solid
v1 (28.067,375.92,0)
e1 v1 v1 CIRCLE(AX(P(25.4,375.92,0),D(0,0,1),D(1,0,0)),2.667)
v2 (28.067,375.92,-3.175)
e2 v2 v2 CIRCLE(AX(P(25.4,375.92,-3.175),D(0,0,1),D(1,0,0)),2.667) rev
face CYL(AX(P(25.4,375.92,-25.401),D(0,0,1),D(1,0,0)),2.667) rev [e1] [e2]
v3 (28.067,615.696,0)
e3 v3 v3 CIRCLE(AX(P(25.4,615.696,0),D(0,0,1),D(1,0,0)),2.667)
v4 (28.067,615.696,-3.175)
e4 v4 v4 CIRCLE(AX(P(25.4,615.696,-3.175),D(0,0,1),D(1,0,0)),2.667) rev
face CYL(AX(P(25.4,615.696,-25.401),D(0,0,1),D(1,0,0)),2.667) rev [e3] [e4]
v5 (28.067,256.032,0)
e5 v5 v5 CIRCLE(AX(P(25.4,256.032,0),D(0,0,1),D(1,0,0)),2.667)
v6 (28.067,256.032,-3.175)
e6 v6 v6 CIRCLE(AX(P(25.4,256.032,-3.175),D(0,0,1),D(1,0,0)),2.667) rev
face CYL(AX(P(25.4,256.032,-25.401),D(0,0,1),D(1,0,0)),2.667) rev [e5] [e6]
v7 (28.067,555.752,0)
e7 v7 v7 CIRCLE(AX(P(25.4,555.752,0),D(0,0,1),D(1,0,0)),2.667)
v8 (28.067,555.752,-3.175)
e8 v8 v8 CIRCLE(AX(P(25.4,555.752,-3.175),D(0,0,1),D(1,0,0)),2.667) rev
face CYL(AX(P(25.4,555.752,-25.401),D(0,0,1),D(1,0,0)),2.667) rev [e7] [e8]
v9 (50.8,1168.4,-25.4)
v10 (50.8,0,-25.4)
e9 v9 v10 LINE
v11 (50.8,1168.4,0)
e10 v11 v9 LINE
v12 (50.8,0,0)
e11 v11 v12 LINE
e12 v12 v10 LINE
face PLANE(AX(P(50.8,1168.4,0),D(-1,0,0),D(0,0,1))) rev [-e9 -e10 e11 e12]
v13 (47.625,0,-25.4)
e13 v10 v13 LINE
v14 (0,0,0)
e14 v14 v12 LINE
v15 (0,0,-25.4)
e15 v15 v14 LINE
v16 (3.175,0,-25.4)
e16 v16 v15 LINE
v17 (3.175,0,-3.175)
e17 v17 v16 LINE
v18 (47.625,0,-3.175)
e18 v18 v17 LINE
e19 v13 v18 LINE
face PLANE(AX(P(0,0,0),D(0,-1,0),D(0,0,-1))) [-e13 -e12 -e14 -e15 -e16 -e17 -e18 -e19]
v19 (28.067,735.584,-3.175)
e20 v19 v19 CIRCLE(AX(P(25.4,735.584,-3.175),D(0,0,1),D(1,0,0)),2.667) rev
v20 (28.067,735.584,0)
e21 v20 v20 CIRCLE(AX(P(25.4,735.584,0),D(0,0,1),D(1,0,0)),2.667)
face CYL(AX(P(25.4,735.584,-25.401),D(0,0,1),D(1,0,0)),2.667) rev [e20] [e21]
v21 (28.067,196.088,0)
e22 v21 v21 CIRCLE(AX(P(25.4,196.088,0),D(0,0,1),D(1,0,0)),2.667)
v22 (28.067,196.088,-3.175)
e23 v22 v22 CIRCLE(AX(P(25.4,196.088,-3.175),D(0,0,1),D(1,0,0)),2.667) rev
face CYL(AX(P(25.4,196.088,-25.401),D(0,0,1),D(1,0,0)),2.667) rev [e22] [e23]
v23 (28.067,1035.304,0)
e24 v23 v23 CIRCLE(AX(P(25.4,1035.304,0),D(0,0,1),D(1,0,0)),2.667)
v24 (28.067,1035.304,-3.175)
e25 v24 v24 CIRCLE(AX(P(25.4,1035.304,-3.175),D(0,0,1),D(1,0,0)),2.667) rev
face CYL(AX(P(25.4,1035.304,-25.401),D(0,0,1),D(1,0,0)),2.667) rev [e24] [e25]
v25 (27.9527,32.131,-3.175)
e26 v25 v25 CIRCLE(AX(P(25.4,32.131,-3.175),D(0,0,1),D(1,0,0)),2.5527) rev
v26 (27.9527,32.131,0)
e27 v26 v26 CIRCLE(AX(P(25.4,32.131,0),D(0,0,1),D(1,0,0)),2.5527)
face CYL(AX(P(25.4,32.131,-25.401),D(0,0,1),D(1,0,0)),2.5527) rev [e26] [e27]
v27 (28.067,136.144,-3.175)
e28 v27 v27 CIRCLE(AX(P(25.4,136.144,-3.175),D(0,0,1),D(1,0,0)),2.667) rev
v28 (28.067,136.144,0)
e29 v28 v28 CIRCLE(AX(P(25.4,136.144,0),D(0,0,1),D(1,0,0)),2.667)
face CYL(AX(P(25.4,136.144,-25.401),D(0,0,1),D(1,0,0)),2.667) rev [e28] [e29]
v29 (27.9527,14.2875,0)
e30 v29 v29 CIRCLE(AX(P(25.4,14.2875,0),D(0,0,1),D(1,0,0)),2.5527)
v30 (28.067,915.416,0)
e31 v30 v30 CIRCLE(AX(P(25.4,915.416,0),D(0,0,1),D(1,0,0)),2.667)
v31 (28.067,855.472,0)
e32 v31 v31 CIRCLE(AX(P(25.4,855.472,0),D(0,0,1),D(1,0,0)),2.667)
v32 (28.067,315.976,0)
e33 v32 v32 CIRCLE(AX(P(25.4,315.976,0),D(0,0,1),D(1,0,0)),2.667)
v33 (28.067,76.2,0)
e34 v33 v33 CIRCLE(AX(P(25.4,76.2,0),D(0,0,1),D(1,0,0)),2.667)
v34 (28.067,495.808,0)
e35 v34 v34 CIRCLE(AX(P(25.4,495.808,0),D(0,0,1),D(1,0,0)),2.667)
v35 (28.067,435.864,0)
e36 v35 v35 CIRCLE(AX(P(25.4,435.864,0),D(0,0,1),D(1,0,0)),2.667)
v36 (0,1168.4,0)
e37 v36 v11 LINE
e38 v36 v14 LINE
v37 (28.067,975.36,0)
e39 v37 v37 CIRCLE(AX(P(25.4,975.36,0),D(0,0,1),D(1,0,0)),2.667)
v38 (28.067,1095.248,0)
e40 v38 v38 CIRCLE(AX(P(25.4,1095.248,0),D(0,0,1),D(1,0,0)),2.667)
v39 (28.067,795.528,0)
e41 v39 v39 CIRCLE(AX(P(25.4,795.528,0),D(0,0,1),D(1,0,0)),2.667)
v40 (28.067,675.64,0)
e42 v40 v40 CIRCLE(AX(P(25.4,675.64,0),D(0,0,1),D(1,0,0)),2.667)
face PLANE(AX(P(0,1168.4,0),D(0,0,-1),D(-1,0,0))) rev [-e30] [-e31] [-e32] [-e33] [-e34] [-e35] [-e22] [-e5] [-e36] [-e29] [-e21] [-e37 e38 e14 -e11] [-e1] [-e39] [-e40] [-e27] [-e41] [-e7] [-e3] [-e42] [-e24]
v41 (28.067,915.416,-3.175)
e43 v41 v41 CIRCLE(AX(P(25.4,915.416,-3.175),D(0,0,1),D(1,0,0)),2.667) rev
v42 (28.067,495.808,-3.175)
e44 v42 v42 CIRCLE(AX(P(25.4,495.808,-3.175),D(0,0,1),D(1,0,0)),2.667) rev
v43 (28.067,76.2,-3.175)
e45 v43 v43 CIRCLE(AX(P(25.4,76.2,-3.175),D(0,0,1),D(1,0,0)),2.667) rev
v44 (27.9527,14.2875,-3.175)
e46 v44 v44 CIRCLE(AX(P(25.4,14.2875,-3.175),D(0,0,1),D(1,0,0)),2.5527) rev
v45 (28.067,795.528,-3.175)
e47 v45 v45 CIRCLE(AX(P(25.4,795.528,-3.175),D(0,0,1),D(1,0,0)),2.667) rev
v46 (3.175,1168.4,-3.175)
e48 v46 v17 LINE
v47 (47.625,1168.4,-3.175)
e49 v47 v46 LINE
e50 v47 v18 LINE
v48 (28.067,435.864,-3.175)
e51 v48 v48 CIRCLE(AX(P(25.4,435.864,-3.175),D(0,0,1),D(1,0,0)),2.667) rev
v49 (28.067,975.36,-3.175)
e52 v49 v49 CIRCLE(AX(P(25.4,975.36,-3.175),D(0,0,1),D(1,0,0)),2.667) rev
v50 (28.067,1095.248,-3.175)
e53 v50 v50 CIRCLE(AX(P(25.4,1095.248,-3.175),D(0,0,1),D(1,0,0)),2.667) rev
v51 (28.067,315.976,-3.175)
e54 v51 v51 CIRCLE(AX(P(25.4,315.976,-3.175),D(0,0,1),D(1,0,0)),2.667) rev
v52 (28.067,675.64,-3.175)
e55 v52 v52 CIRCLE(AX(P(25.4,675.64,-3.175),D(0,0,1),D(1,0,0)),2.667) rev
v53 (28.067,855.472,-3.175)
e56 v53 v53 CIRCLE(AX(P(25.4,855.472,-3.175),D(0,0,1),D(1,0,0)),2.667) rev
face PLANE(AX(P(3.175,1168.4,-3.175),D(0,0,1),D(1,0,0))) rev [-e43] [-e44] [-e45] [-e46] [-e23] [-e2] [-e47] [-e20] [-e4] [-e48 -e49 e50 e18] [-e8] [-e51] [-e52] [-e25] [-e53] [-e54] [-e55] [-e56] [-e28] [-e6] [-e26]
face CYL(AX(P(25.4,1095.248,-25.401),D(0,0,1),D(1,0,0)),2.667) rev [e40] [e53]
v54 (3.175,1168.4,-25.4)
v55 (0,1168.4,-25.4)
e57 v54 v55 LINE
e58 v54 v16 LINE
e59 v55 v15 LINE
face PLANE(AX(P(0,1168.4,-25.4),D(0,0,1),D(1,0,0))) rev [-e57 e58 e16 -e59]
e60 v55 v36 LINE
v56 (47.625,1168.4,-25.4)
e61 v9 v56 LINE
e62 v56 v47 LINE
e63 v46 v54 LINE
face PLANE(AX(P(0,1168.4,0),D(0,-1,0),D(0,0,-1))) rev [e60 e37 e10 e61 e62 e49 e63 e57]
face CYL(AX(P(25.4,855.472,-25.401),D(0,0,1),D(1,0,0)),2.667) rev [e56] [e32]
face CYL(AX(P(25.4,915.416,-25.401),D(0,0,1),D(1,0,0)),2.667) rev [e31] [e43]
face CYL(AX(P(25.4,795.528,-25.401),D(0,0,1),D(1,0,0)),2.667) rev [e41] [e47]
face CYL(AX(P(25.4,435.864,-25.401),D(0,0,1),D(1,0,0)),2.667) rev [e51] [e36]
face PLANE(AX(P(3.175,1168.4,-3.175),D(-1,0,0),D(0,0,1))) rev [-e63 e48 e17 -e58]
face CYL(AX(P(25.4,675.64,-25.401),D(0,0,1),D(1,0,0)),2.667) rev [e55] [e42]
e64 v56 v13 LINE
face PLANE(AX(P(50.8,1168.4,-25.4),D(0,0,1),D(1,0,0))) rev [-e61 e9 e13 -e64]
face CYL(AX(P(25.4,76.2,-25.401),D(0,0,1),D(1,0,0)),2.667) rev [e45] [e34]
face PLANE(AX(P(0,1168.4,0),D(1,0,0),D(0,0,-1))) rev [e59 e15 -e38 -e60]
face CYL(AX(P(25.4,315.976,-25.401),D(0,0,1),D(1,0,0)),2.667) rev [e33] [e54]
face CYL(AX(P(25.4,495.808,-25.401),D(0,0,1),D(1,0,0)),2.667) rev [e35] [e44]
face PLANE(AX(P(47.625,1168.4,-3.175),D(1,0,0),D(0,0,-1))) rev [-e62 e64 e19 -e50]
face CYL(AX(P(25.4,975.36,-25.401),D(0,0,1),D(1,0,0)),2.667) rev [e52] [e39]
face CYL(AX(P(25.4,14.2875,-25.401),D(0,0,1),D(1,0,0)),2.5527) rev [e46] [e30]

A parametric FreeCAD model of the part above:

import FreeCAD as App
import Part
import Sketcher
from FreeCAD import Vector
Q = App.Units.Quantity


def add_polygon(sketch, points):
    """Adds a closed chain of lines whose ends are joined by coincident constraints."""
    first, n = sketch.GeometryCount, len(points)
    for a, b in zip(points, points[1:] + points[:1]):
        sketch.addGeometry(Part.LineSegment(App.Vector(*a, 0), App.Vector(*b, 0)), False)
    for i in range(n):
        sketch.addConstraint(Sketcher.Constraint("Coincident", first + i, 2, first + (i + 1) % n, 1))

doc = App.newDocument("Part")
body = doc.addObject("PartDesign::Body", "Body")

# Sketch on XZ plane
sketch1 = body.newObject("Sketcher::SketchObject", "Sketch")
sketch1.AttachmentSupport = (doc.getObject("XZ_Plane"), [""])
sketch1.MapMode = "FlatFace"
add_polygon(sketch1, [(3.2, -3.2), (3.2, -25.4), (0, -25.4), (0, 0), (50.8, 0), (50.8, -25.4), (47.6, -25.4), (47.6, -3.2)])  # lines 0-7
sketch1.addConstraint([
    Sketcher.Constraint("Vertical", 0),
    Sketcher.Constraint("Horizontal", 1),
    Sketcher.Constraint("Vertical", 2),
    Sketcher.Constraint("Horizontal", 3),
    Sketcher.Constraint("Vertical", 4),
    Sketcher.Constraint("Horizontal", 5),
    Sketcher.Constraint("Vertical", 6),
    Sketcher.Constraint("Horizontal", 7),
    Sketcher.Constraint("Coincident", 2, 2, -1, 1),
    Sketcher.Constraint("Horizontal", 1, 2, 4, 2),
    Sketcher.Constraint("Equal", 1, 5),
    Sketcher.Constraint("DistanceX", 3, 1, 3, 2, Q("2 in")),
    Sketcher.Constraint("DistanceY", 2, 1, 2, 2, Q("1 in")),
    Sketcher.Constraint("DistanceX", 7, 2, 7, 1, Q("1.75 in")),
    Sketcher.Constraint("DistanceY", 0, 2, 0, 1, Q("0.875 in")),
])
pad1 = body.newObject("PartDesign::Pad", "Pad")
pad1.Profile = sketch1
pad1.Length = Q("46 in")
pad1.Reversed = True

# Sketch on XY plane
sketch2 = body.newObject("Sketcher::SketchObject", "Sketch001")
sketch2.AttachmentSupport = (doc.getObject("XY_Plane"), [""])
sketch2.MapMode = "FlatFace"
sketch2.addGeometry(Part.Circle(Vector(25.4, 76.2, 0), Vector(0, 0, 1), 2.7), False)
sketch2.addConstraint([
    Sketcher.Constraint("Diameter", 0, Q("0.21 in")),
    Sketcher.Constraint("DistanceX", -1, 1, 0, 3, Q("1 in")),
    Sketcher.Constraint("DistanceY", -1, 1, 0, 3, Q("3 in")),
])
pocket1 = body.newObject("PartDesign::Pocket", "Pocket")
pocket1.Profile = sketch2
pocket1.Type = "UpToFirst"

# Sketch on XY plane
sketch3 = body.newObject("Sketcher::SketchObject", "Sketch002")
sketch3.AttachmentSupport = (doc.getObject("XY_Plane"), [""])
sketch3.MapMode = "FlatFace"
sketch3.addGeometry(Part.Circle(Vector(25.4, 136.1, 0), Vector(0, 0, 1), 2.7), False)
sketch3.addConstraint([
    Sketcher.Constraint("Diameter", 0, Q("0.21 in")),
    Sketcher.Constraint("DistanceX", -1, 1, 0, 3, Q("1 in")),
    Sketcher.Constraint("DistanceY", -1, 1, 0, 3, Q("5.36 in")),
])
pocket2 = body.newObject("PartDesign::Pocket", "Pocket001")
pocket2.Profile = sketch3
pocket2.Type = "UpToFirst"

# Sketch on XY plane
sketch4 = body.newObject("Sketcher::SketchObject", "Sketch003")
sketch4.AttachmentSupport = (doc.getObject("XY_Plane"), [""])
sketch4.MapMode = "FlatFace"
sketch4.addGeometry(Part.Circle(Vector(25.4, 196.1, 0), Vector(0, 0, 1), 2.7), False)
sketch4.addConstraint([
    Sketcher.Constraint("Diameter", 0, Q("0.21 in")),
    Sketcher.Constraint("DistanceX", -1, 1, 0, 3, Q("1 in")),
    Sketcher.Constraint("DistanceY", -1, 1, 0, 3, Q("7.72 in")),
])
pocket3 = body.newObject("PartDesign::Pocket", "Pocket002")
pocket3.Profile = sketch4
pocket3.Type = "UpToFirst"

# Sketch on XY plane
sketch5 = body.newObject("Sketcher::SketchObject", "Sketch004")
sketch5.AttachmentSupport = (doc.getObject("XY_Plane"), [""])
sketch5.MapMode = "FlatFace"
sketch5.addGeometry(Part.Circle(Vector(25.4, 256, 0), Vector(0, 0, 1), 2.7), False)
sketch5.addConstraint([
    Sketcher.Constraint("Diameter", 0, Q("0.21 in")),
    Sketcher.Constraint("DistanceX", -1, 1, 0, 3, Q("1 in")),
    Sketcher.Constraint("DistanceY", -1, 1, 0, 3, Q("10.08 in")),
])
pocket4 = body.newObject("PartDesign::Pocket", "Pocket003")
pocket4.Profile = sketch5
pocket4.Type = "UpToFirst"

# Sketch on XY plane
sketch6 = body.newObject("Sketcher::SketchObject", "Sketch005")
sketch6.AttachmentSupport = (doc.getObject("XY_Plane"), [""])
sketch6.MapMode = "FlatFace"
sketch6.addGeometry(Part.Circle(Vector(25.4, 316, 0), Vector(0, 0, 1), 2.7), False)
sketch6.addConstraint([
    Sketcher.Constraint("Diameter", 0, Q("0.21 in")),
    Sketcher.Constraint("DistanceX", -1, 1, 0, 3, Q("1 in")),
    Sketcher.Constraint("DistanceY", -1, 1, 0, 3, Q("12.44 in")),
])
pocket5 = body.newObject("PartDesign::Pocket", "Pocket004")
pocket5.Profile = sketch6
pocket5.Type = "UpToFirst"

# Sketch on XY plane
sketch7 = body.newObject("Sketcher::SketchObject", "Sketch006")
sketch7.AttachmentSupport = (doc.getObject("XY_Plane"), [""])
sketch7.MapMode = "FlatFace"
sketch7.addGeometry(Part.Circle(Vector(25.4, 375.9, 0), Vector(0, 0, 1), 2.7), False)
sketch7.addConstraint([
    Sketcher.Constraint("Diameter", 0, Q("0.21 in")),
    Sketcher.Constraint("DistanceX", -1, 1, 0, 3, Q("1 in")),
    Sketcher.Constraint("DistanceY", -1, 1, 0, 3, Q("14.8 in")),
])
pocket6 = body.newObject("PartDesign::Pocket", "Pocket005")
pocket6.Profile = sketch7
pocket6.Type = "UpToFirst"

# Sketch on XY plane
sketch8 = body.newObject("Sketcher::SketchObject", "Sketch007")
sketch8.AttachmentSupport = (doc.getObject("XY_Plane"), [""])
sketch8.MapMode = "FlatFace"
sketch8.addGeometry(Part.Circle(Vector(25.4, 435.9, 0), Vector(0, 0, 1), 2.7), False)
sketch8.addConstraint([
    Sketcher.Constraint("Diameter", 0, Q("0.21 in")),
    Sketcher.Constraint("DistanceX", -1, 1, 0, 3, Q("1 in")),
    Sketcher.Constraint("DistanceY", -1, 1, 0, 3, Q("17.16 in")),
])
pocket7 = body.newObject("PartDesign::Pocket", "Pocket006")
pocket7.Profile = sketch8
pocket7.Type = "UpToFirst"

# Sketch on XY plane
sketch9 = body.newObject("Sketcher::SketchObject", "Sketch008")
sketch9.AttachmentSupport = (doc.getObject("XY_Plane"), [""])
sketch9.MapMode = "FlatFace"
sketch9.addGeometry(Part.Circle(Vector(25.4, 495.8, 0), Vector(0, 0, 1), 2.7), False)
sketch9.addConstraint([
    Sketcher.Constraint("Diameter", 0, Q("0.21 in")),
    Sketcher.Constraint("DistanceX", -1, 1, 0, 3, Q("1 in")),
    Sketcher.Constraint("DistanceY", -1, 1, 0, 3, Q("19.52 in")),
])
pocket8 = body.newObject("PartDesign::Pocket", "Pocket007")
pocket8.Profile = sketch9
pocket8.Type = "UpToFirst"

# Sketch on XY plane
sketch10 = body.newObject("Sketcher::SketchObject", "Sketch009")
sketch10.AttachmentSupport = (doc.getObject("XY_Plane"), [""])
sketch10.MapMode = "FlatFace"
sketch10.addGeometry(Part.Circle(Vector(25.4, 555.8, 0), Vector(0, 0, 1), 2.7), False)
sketch10.addConstraint([
    Sketcher.Constraint("Diameter", 0, Q("0.21 in")),
    Sketcher.Constraint("DistanceX", -1, 1, 0, 3, Q("1 in")),
    Sketcher.Constraint("DistanceY", -1, 1, 0, 3, Q("21.88 in")),
])
pocket9 = body.newObject("PartDesign::Pocket", "Pocket008")
pocket9.Profile = sketch10
pocket9.Type = "UpToFirst"

# Sketch on XY plane
sketch11 = body.newObject("Sketcher::SketchObject", "Sketch010")
sketch11.AttachmentSupport = (doc.getObject("XY_Plane"), [""])
sketch11.MapMode = "FlatFace"
sketch11.addGeometry(Part.Circle(Vector(25.4, 615.7, 0), Vector(0, 0, 1), 2.7), False)
sketch11.addConstraint([
    Sketcher.Constraint("Diameter", 0, Q("0.21 in")),
    Sketcher.Constraint("DistanceX", -1, 1, 0, 3, Q("1 in")),
    Sketcher.Constraint("DistanceY", -1, 1, 0, 3, Q("24.24 in")),
])
pocket10 = body.newObject("PartDesign::Pocket", "Pocket009")
pocket10.Profile = sketch11
pocket10.Type = "UpToFirst"

# Sketch on XY plane
sketch12 = body.newObject("Sketcher::SketchObject", "Sketch011")
sketch12.AttachmentSupport = (doc.getObject("XY_Plane"), [""])
sketch12.MapMode = "FlatFace"
sketch12.addGeometry(Part.Circle(Vector(25.4, 675.6, 0), Vector(0, 0, 1), 2.7), False)
sketch12.addConstraint([
    Sketcher.Constraint("Diameter", 0, Q("0.21 in")),
    Sketcher.Constraint("DistanceX", -1, 1, 0, 3, Q("1 in")),
    Sketcher.Constraint("DistanceY", -1, 1, 0, 3, Q("26.6 in")),
])
pocket11 = body.newObject("PartDesign::Pocket", "Pocket010")
pocket11.Profile = sketch12
pocket11.Type = "UpToFirst"

# Sketch on XY plane
sketch13 = body.newObject("Sketcher::SketchObject", "Sketch012")
sketch13.AttachmentSupport = (doc.getObject("XY_Plane"), [""])
sketch13.MapMode = "FlatFace"
sketch13.addGeometry(Part.Circle(Vector(25.4, 735.6, 0), Vector(0, 0, 1), 2.7), False)
sketch13.addConstraint([
    Sketcher.Constraint("Diameter", 0, Q("0.21 in")),
    Sketcher.Constraint("DistanceX", -1, 1, 0, 3, Q("1 in")),
    Sketcher.Constraint("DistanceY", -1, 1, 0, 3, Q("28.96 in")),
])
pocket12 = body.newObject("PartDesign::Pocket", "Pocket011")
pocket12.Profile = sketch13
pocket12.Type = "UpToFirst"

# Sketch on XY plane
sketch14 = body.newObject("Sketcher::SketchObject", "Sketch013")
sketch14.AttachmentSupport = (doc.getObject("XY_Plane"), [""])
sketch14.MapMode = "FlatFace"
sketch14.addGeometry(Part.Circle(Vector(25.4, 795.5, 0), Vector(0, 0, 1), 2.7), False)
sketch14.addConstraint([
    Sketcher.Constraint("Diameter", 0, Q("0.21 in")),
    Sketcher.Constraint("DistanceX", -1, 1, 0, 3, Q("1 in")),
    Sketcher.Constraint("DistanceY", -1, 1, 0, 3, Q("31.32 in")),
])
pocket13 = body.newObject("PartDesign::Pocket", "Pocket012")
pocket13.Profile = sketch14
pocket13.Type = "UpToFirst"

# Sketch on XY plane
sketch15 = body.newObject("Sketcher::SketchObject", "Sketch014")
sketch15.AttachmentSupport = (doc.getObject("XY_Plane"), [""])
sketch15.MapMode = "FlatFace"
sketch15.addGeometry(Part.Circle(Vector(25.4, 855.5, 0), Vector(0, 0, 1), 2.7), False)
sketch15.addConstraint([
    Sketcher.Constraint("Diameter", 0, Q("0.21 in")),
    Sketcher.Constraint("DistanceX", -1, 1, 0, 3, Q("1 in")),
    Sketcher.Constraint("DistanceY", -1, 1, 0, 3, Q("33.68 in")),
])
pocket14 = body.newObject("PartDesign::Pocket", "Pocket013")
pocket14.Profile = sketch15
pocket14.Type = "UpToFirst"

# Sketch on XY plane
sketch16 = body.newObject("Sketcher::SketchObject", "Sketch015")
sketch16.AttachmentSupport = (doc.getObject("XY_Plane"), [""])
sketch16.MapMode = "FlatFace"
sketch16.addGeometry(Part.Circle(Vector(25.4, 915.4, 0), Vector(0, 0, 1), 2.7), False)
sketch16.addConstraint([
    Sketcher.Constraint("Diameter", 0, Q("0.21 in")),
    Sketcher.Constraint("DistanceX", -1, 1, 0, 3, Q("1 in")),
    Sketcher.Constraint("DistanceY", -1, 1, 0, 3, Q("36.04 in")),
])
pocket15 = body.newObject("PartDesign::Pocket", "Pocket014")
pocket15.Profile = sketch16
pocket15.Type = "UpToFirst"

# Sketch on XY plane
sketch17 = body.newObject("Sketcher::SketchObject", "Sketch016")
sketch17.AttachmentSupport = (doc.getObject("XY_Plane"), [""])
sketch17.MapMode = "FlatFace"
sketch17.addGeometry(Part.Circle(Vector(25.4, 975.4, 0), Vector(0, 0, 1), 2.7), False)
sketch17.addConstraint([
    Sketcher.Constraint("Diameter", 0, Q("0.21 in")),
    Sketcher.Constraint("DistanceX", -1, 1, 0, 3, Q("1 in")),
    Sketcher.Constraint("DistanceY", -1, 1, 0, 3, Q("38.4 in")),
])
pocket16 = body.newObject("PartDesign::Pocket", "Pocket015")
pocket16.Profile = sketch17
pocket16.Type = "UpToFirst"

# Sketch on XY plane
sketch18 = body.newObject("Sketcher::SketchObject", "Sketch017")
sketch18.AttachmentSupport = (doc.getObject("XY_Plane"), [""])
sketch18.MapMode = "FlatFace"
sketch18.addGeometry(Part.Circle(Vector(25.4, 1035.3, 0), Vector(0, 0, 1), 2.7), False)
sketch18.addConstraint([
    Sketcher.Constraint("Diameter", 0, Q("0.21 in")),
    Sketcher.Constraint("DistanceX", -1, 1, 0, 3, Q("1 in")),
    Sketcher.Constraint("DistanceY", -1, 1, 0, 3, Q("40.76 in")),
])
pocket17 = body.newObject("PartDesign::Pocket", "Pocket016")
pocket17.Profile = sketch18
pocket17.Type = "UpToFirst"

# Sketch on XY plane
sketch19 = body.newObject("Sketcher::SketchObject", "Sketch018")
sketch19.AttachmentSupport = (doc.getObject("XY_Plane"), [""])
sketch19.MapMode = "FlatFace"
sketch19.addGeometry(Part.Circle(Vector(25.4, 1095.2, 0), Vector(0, 0, 1), 2.7), False)
sketch19.addConstraint([
    Sketcher.Constraint("Diameter", 0, Q("0.21 in")),
    Sketcher.Constraint("DistanceX", -1, 1, 0, 3, Q("1 in")),
    Sketcher.Constraint("DistanceY", -1, 1, 0, 3, Q("43.12 in")),
])
pocket18 = body.newObject("PartDesign::Pocket", "Pocket017")
pocket18.Profile = sketch19
pocket18.Type = "UpToFirst"

# Sketch on XY plane
sketch20 = body.newObject("Sketcher::SketchObject", "Sketch019")
sketch20.AttachmentSupport = (doc.getObject("XY_Plane"), [""])
sketch20.MapMode = "FlatFace"
sketch20.addGeometry(Part.Circle(Vector(25.4, 32.1, 0), Vector(0, 0, 1), 2.6), False)
sketch20.addConstraint([
    Sketcher.Constraint("Diameter", 0, Q("0.201 in")),
    Sketcher.Constraint("DistanceX", -1, 1, 0, 3, Q("1 in")),
    Sketcher.Constraint("DistanceY", -1, 1, 0, 3, Q("1.265 in")),
])
pocket19 = body.newObject("PartDesign::Pocket", "Pocket018")
pocket19.Profile = sketch20
pocket19.Type = "UpToFirst"

# Sketch on XY plane
sketch21 = body.newObject("Sketcher::SketchObject", "Sketch020")
sketch21.AttachmentSupport = (doc.getObject("XY_Plane"), [""])
sketch21.MapMode = "FlatFace"
sketch21.addGeometry(Part.Circle(Vector(25.4, 14.3, 0), Vector(0, 0, 1), 2.6), False)
sketch21.addConstraint([
    Sketcher.Constraint("Diameter", 0, Q("0.201 in")),
    Sketcher.Constraint("DistanceX", -1, 1, 0, 3, Q("1 in")),
    Sketcher.Constraint("DistanceY", -1, 1, 0, 3, Q("0.5625 in")),
])
pocket20 = body.newObject("PartDesign::Pocket", "Pocket019")
pocket20.Profile = sketch21
pocket20.Type = "UpToFirst"

doc.recompute()
